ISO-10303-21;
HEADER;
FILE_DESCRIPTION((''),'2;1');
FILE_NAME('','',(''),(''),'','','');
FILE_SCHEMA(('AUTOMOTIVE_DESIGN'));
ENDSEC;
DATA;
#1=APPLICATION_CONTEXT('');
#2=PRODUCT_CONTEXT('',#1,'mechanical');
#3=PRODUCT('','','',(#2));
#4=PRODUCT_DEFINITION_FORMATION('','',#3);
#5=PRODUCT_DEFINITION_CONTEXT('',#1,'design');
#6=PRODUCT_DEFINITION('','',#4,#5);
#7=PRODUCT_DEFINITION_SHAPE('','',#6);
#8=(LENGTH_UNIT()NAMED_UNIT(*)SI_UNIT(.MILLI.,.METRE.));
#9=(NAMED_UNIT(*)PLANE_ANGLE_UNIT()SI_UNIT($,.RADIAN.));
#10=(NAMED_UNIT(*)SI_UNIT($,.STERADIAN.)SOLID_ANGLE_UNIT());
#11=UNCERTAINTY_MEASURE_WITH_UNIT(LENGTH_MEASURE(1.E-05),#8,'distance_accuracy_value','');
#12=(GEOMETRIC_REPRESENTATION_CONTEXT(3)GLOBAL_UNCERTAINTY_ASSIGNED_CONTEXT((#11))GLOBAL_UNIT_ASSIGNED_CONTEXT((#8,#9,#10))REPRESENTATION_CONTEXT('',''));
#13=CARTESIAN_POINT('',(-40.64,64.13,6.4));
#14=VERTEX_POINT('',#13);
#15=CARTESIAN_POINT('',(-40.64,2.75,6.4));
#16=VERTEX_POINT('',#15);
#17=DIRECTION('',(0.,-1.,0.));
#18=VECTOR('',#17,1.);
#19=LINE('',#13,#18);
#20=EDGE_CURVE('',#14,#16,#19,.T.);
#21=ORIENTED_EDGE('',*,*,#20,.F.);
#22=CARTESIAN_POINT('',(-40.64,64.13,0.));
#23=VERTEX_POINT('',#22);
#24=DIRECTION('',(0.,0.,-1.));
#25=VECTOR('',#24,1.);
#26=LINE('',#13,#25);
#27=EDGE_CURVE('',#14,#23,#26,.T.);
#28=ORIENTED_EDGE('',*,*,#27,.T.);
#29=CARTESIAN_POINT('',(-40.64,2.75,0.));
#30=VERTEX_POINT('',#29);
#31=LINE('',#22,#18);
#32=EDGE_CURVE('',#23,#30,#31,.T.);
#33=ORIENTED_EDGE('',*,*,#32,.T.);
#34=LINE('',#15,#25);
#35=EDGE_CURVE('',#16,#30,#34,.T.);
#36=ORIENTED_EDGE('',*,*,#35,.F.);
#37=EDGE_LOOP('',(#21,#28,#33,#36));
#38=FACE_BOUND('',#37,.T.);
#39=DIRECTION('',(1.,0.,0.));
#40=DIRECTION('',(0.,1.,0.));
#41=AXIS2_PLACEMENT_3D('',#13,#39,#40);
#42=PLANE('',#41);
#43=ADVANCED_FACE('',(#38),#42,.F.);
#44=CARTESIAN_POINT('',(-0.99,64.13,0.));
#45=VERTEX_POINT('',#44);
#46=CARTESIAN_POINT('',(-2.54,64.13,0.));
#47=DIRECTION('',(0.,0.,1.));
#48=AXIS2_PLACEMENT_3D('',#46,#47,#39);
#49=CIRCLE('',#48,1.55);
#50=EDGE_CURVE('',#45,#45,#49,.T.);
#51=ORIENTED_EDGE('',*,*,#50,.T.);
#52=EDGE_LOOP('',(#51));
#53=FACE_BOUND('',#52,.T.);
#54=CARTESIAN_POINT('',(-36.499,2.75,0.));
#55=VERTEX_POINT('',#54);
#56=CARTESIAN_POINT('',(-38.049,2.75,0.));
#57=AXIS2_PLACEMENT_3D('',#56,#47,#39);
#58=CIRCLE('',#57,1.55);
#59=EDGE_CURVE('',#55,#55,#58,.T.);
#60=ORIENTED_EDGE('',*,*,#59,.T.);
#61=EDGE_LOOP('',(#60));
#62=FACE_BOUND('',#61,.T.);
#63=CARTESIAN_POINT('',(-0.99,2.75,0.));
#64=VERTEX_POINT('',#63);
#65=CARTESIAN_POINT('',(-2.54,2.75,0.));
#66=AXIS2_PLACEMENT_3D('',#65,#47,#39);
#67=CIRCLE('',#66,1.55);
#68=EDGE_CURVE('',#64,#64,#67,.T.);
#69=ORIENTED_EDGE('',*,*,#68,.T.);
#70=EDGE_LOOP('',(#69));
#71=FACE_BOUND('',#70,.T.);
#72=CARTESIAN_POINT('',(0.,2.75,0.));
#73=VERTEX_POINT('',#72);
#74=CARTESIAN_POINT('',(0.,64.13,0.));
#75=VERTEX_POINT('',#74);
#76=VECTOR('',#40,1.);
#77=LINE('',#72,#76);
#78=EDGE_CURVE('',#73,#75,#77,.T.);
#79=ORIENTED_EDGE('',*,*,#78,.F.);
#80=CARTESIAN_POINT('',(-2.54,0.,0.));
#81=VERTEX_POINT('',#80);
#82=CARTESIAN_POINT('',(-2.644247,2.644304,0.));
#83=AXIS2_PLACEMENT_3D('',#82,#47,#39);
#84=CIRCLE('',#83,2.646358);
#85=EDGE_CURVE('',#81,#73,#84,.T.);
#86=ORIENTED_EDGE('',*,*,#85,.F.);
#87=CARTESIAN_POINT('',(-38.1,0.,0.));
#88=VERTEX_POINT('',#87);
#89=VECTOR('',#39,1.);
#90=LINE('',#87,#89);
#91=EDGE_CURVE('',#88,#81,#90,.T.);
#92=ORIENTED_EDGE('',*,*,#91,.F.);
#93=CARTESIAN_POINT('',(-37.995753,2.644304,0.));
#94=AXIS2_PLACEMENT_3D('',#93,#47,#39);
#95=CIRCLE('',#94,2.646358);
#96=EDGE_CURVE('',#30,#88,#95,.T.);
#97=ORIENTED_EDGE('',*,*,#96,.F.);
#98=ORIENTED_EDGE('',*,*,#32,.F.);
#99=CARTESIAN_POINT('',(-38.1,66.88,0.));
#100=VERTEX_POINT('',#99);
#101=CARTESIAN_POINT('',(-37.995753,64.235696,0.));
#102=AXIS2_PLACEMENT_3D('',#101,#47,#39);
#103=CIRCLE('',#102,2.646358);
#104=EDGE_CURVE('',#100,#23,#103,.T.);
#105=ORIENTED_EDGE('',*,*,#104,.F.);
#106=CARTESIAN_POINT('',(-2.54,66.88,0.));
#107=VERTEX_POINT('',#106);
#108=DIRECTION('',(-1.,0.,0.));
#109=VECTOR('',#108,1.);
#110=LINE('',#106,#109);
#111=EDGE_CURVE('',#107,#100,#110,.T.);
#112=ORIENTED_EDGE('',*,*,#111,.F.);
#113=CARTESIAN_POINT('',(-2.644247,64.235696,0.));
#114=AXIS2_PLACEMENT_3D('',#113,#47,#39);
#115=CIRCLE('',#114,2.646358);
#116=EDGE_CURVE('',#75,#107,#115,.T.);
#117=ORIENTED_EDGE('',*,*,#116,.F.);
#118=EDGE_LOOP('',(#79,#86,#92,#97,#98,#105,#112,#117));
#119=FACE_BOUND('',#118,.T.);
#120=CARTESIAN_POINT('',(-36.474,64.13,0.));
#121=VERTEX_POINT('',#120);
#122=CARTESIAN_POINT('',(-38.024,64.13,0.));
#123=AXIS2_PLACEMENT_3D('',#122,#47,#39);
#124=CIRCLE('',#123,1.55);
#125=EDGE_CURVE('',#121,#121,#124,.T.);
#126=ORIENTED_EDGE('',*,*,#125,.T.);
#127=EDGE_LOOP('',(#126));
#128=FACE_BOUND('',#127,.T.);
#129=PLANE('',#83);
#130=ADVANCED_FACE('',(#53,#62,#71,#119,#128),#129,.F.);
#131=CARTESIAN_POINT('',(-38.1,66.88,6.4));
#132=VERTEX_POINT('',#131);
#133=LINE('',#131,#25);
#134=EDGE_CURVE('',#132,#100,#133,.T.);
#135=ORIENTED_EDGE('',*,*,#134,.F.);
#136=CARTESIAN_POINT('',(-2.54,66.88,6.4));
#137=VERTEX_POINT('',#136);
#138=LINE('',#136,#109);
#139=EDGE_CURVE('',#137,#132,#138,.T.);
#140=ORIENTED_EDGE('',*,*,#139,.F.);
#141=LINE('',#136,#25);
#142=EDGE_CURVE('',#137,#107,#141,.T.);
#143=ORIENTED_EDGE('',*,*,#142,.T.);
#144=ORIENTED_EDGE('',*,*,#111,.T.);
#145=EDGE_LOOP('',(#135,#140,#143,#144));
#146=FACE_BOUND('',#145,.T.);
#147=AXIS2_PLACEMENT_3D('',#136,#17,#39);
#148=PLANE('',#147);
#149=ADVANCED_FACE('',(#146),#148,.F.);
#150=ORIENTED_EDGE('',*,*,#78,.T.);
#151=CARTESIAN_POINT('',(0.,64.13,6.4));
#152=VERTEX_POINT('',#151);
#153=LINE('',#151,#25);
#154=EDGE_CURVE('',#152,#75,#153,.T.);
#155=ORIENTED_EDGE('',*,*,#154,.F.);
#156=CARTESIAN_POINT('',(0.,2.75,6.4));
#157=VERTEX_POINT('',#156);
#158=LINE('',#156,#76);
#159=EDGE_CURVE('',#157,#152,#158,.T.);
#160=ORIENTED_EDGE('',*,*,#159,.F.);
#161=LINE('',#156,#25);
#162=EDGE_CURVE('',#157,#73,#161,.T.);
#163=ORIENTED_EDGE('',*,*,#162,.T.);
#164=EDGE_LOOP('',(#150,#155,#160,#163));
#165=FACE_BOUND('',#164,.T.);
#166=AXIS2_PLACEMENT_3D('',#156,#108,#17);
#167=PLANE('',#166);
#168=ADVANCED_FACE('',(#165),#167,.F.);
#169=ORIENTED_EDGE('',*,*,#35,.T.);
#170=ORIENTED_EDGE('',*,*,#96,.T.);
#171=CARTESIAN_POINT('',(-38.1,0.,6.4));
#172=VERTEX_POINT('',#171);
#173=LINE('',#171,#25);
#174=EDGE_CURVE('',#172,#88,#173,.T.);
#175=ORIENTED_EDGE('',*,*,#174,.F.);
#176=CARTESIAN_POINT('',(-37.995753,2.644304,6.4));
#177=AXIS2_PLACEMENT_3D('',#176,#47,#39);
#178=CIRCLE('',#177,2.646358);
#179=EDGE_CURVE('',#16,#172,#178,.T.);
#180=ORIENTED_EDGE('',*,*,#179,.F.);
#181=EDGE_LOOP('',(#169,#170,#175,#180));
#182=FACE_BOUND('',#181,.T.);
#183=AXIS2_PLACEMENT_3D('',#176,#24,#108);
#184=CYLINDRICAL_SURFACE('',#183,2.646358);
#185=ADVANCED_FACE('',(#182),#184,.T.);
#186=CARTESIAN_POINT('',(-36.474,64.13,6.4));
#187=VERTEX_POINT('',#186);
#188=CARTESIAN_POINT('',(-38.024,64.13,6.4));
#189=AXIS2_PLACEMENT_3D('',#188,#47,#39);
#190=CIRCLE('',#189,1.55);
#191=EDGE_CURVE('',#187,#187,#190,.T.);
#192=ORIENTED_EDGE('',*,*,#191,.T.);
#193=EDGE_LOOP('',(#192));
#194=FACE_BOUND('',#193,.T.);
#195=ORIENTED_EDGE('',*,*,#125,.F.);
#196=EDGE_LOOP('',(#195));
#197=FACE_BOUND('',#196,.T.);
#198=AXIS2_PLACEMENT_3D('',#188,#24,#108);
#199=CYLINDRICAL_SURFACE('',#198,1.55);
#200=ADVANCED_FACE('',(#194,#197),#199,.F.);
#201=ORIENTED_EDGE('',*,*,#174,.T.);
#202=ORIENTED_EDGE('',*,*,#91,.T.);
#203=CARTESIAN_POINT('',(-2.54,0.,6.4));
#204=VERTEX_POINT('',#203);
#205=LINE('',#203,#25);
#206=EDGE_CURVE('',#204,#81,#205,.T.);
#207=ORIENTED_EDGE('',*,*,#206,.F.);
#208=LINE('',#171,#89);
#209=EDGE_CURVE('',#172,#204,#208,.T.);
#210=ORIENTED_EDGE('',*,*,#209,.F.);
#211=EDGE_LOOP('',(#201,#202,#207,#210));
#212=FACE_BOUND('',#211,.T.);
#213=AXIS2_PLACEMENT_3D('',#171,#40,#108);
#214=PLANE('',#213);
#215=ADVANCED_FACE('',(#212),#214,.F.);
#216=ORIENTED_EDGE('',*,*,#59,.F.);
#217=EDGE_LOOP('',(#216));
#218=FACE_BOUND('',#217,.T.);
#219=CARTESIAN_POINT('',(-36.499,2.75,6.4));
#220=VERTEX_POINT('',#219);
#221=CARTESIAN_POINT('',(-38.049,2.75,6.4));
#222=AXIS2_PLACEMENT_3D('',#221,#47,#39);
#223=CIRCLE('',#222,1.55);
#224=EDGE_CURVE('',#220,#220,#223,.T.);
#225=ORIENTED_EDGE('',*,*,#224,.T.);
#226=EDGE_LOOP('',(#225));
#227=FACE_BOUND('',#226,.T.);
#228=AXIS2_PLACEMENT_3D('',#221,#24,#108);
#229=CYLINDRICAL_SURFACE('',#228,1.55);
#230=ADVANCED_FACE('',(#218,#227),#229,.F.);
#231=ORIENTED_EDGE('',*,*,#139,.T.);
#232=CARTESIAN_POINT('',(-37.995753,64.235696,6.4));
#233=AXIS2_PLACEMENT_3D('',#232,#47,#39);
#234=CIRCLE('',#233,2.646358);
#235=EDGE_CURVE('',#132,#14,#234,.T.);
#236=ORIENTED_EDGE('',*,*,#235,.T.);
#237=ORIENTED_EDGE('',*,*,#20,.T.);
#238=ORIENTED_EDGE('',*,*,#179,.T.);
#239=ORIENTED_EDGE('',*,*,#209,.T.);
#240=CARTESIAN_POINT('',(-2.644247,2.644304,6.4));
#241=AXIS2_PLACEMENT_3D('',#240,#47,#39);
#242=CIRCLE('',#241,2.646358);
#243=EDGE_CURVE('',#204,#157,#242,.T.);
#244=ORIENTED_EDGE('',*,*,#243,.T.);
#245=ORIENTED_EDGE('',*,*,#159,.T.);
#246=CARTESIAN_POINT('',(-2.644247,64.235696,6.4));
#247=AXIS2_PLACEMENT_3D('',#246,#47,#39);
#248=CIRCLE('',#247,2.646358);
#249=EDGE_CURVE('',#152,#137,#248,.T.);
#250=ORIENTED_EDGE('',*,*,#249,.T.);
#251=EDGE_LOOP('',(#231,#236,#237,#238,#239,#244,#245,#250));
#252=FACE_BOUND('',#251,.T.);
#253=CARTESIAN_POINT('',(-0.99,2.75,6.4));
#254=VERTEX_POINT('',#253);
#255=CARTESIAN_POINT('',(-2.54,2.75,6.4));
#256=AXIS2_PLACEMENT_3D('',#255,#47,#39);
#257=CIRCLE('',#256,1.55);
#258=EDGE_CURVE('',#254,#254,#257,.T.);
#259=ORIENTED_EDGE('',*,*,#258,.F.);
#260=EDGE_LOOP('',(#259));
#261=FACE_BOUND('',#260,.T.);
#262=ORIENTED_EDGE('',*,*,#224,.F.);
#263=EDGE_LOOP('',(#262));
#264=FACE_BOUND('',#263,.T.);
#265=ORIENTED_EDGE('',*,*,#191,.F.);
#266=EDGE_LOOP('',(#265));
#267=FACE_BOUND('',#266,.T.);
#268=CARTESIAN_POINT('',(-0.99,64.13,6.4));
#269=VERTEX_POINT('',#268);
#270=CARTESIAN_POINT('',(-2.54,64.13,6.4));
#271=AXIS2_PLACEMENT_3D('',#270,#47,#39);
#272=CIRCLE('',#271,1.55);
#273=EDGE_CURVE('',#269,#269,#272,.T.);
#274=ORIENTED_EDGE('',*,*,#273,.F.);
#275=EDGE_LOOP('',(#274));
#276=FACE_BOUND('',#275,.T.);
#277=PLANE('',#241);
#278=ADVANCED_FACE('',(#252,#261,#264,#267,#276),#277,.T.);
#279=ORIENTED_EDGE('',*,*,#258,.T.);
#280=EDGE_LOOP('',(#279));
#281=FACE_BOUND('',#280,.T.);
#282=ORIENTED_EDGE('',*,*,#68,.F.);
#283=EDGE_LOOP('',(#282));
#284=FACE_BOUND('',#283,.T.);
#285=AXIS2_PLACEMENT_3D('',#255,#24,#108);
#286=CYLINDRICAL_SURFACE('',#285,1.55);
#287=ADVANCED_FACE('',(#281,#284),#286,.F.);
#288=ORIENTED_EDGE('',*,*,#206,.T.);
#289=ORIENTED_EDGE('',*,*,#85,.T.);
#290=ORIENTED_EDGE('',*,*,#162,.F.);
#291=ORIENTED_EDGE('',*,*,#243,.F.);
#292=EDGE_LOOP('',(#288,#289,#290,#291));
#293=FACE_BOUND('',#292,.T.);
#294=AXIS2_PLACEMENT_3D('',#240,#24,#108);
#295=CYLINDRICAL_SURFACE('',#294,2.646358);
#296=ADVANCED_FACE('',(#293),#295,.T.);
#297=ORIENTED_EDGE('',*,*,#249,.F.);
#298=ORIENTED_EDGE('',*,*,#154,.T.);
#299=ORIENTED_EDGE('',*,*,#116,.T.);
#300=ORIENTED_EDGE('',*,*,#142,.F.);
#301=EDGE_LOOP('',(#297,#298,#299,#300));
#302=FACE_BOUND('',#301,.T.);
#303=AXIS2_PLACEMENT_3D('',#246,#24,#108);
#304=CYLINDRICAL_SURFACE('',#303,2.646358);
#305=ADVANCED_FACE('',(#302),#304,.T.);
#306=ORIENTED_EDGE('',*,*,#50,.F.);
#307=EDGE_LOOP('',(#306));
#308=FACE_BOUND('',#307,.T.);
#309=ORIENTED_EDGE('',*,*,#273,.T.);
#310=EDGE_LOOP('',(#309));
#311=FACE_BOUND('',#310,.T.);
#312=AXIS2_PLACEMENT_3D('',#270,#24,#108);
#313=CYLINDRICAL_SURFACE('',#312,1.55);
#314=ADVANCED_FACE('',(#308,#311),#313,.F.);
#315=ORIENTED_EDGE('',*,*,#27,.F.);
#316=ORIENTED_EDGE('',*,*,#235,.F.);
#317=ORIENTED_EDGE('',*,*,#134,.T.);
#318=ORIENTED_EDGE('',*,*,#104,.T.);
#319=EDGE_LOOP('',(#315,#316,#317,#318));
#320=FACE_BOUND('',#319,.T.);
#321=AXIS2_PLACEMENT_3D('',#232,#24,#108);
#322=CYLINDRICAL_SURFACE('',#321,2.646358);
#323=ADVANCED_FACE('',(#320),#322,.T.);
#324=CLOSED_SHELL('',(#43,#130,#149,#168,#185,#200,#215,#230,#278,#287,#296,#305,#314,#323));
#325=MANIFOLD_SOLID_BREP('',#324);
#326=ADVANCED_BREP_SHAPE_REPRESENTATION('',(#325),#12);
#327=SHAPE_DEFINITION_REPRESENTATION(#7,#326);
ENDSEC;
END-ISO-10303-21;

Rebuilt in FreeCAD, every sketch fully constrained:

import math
import FreeCAD as App
import Part
import Sketcher

V = App.Vector

doc = App.newDocument("Part")
body = doc.addObject("PartDesign::Body", "Body")

# Sketch on XY plane
sketch1 = body.newObject("Sketcher::SketchObject", "Sketch")
sketch1.AttachmentSupport = (doc.getObject("XY_Plane"), [""])
sketch1.MapMode = "FlatFace"
sketch1.addGeometry([
    Part.LineSegment(V(0, 2.8, 0), V(0, 64.1, 0)),  # 0
    Part.ArcOfCircle(Part.Circle(V(-2.6, 64.2, 0), V(0, 0, 1), 2.6), math.radians(-2), math.radians(88)),  # 1
    Part.LineSegment(V(-2.5, 66.9, 0), V(-38.1, 66.9, 0)),  # 2
    Part.ArcOfCircle(Part.Circle(V(-38, 64.2, 0), V(0, 0, 1), 2.6), math.radians(92), math.radians(182)),  # 3
    Part.LineSegment(V(-40.6, 64.1, 0), V(-40.6, 2.8, 0)),  # 4
    Part.ArcOfCircle(Part.Circle(V(-38, 2.6, 0), V(0, 0, 1), 2.6), math.radians(178), math.radians(268)),  # 5
    Part.LineSegment(V(-38.1, 0, 0), V(-2.5, 0, 0)),  # 6
    Part.ArcOfCircle(Part.Circle(V(-2.6, 2.6, 0), V(0, 0, 1), 2.6), math.radians(-88), math.radians(2)),  # 7
    Part.Circle(V(-38, 2.8, 0), V(0, 0, 1), 1.6),  # 8
    Part.Circle(V(-2.5, 2.8, 0), V(0, 0, 1), 1.6),  # 9
    Part.Circle(V(-38, 64.1, 0), V(0, 0, 1), 1.6),  # 10
    Part.Circle(V(-2.5, 64.1, 0), V(0, 0, 1), 1.6),  # 11
], False)
sketch1.addConstraint([
    Sketcher.Constraint("Coincident", 0, 2, 1, 1),
    Sketcher.Constraint("Coincident", 1, 2, 2, 1),
    Sketcher.Constraint("Coincident", 2, 2, 3, 1),
    Sketcher.Constraint("Coincident", 3, 2, 4, 1),
    Sketcher.Constraint("Coincident", 4, 2, 5, 1),
    Sketcher.Constraint("Coincident", 5, 2, 6, 1),
    Sketcher.Constraint("Coincident", 6, 2, 7, 1),
    Sketcher.Constraint("Coincident", 7, 2, 0, 1),
    Sketcher.Constraint("Vertical", 0),
    Sketcher.Constraint("Horizontal", 2),
    Sketcher.Constraint("Vertical", 4),
    Sketcher.Constraint("Horizontal", 6),
    Sketcher.Constraint("Equal", 1, 3),
    Sketcher.Constraint("Equal", 3, 5),
    Sketcher.Constraint("Equal", 5, 7),
    Sketcher.Constraint("Equal", 8, 9),
    Sketcher.Constraint("Equal", 9, 10),
    Sketcher.Constraint("Equal", 10, 11),
    Sketcher.Constraint("PointOnObject", 0, 2, -2),
    Sketcher.Constraint("PointOnObject", 5, 2, -1),
    Sketcher.Constraint("Horizontal", 1, 3, 3, 3),
    Sketcher.Constraint("Horizontal", 5, 3, 7, 3),
    Sketcher.Constraint("Horizontal", 8, 3, 9, 3),
    Sketcher.Constraint("Horizontal", 10, 3, 11, 3),
    Sketcher.Constraint("Horizontal", 11, 3, 0, 2),
    Sketcher.Constraint("Horizontal", 0, 2, 3, 2),
    Sketcher.Constraint("Horizontal", 9, 3, 4, 2),
    Sketcher.Constraint("Horizontal", 4, 2, 7, 2),
    Sketcher.Constraint("Vertical", 3, 3, 5, 3),
    Sketcher.Constraint("Vertical", 9, 3, 11, 3),
    Sketcher.Constraint("Vertical", 11, 3, 1, 2),
    Sketcher.Constraint("Vertical", 2, 2, 5, 2),
    Sketcher.Constraint("Diameter", 8, 3.1),
    Sketcher.Constraint("DistanceX", 2, 2, 2, 1, 35.56),
    Sketcher.Constraint("DistanceY", 0, 1, 0, 2, 61.38),
    Sketcher.Constraint("DistanceX", 2, 2, -1, 1, 38.1),
    Sketcher.Constraint("DistanceY", -1, 1, 8, 3, 2.75),
    Sketcher.Constraint("Radius", 1, 2.646358),
    Sketcher.Constraint("DistanceX", 8, 3, -1, 1, 38.049),
    Sketcher.Constraint("DistanceX", 10, 3, -1, 1, 38.024),
])
pad1 = body.newObject("PartDesign::Pad", "Pad")
pad1.Profile = sketch1
pad1.Length = 6.4

doc.recompute()
